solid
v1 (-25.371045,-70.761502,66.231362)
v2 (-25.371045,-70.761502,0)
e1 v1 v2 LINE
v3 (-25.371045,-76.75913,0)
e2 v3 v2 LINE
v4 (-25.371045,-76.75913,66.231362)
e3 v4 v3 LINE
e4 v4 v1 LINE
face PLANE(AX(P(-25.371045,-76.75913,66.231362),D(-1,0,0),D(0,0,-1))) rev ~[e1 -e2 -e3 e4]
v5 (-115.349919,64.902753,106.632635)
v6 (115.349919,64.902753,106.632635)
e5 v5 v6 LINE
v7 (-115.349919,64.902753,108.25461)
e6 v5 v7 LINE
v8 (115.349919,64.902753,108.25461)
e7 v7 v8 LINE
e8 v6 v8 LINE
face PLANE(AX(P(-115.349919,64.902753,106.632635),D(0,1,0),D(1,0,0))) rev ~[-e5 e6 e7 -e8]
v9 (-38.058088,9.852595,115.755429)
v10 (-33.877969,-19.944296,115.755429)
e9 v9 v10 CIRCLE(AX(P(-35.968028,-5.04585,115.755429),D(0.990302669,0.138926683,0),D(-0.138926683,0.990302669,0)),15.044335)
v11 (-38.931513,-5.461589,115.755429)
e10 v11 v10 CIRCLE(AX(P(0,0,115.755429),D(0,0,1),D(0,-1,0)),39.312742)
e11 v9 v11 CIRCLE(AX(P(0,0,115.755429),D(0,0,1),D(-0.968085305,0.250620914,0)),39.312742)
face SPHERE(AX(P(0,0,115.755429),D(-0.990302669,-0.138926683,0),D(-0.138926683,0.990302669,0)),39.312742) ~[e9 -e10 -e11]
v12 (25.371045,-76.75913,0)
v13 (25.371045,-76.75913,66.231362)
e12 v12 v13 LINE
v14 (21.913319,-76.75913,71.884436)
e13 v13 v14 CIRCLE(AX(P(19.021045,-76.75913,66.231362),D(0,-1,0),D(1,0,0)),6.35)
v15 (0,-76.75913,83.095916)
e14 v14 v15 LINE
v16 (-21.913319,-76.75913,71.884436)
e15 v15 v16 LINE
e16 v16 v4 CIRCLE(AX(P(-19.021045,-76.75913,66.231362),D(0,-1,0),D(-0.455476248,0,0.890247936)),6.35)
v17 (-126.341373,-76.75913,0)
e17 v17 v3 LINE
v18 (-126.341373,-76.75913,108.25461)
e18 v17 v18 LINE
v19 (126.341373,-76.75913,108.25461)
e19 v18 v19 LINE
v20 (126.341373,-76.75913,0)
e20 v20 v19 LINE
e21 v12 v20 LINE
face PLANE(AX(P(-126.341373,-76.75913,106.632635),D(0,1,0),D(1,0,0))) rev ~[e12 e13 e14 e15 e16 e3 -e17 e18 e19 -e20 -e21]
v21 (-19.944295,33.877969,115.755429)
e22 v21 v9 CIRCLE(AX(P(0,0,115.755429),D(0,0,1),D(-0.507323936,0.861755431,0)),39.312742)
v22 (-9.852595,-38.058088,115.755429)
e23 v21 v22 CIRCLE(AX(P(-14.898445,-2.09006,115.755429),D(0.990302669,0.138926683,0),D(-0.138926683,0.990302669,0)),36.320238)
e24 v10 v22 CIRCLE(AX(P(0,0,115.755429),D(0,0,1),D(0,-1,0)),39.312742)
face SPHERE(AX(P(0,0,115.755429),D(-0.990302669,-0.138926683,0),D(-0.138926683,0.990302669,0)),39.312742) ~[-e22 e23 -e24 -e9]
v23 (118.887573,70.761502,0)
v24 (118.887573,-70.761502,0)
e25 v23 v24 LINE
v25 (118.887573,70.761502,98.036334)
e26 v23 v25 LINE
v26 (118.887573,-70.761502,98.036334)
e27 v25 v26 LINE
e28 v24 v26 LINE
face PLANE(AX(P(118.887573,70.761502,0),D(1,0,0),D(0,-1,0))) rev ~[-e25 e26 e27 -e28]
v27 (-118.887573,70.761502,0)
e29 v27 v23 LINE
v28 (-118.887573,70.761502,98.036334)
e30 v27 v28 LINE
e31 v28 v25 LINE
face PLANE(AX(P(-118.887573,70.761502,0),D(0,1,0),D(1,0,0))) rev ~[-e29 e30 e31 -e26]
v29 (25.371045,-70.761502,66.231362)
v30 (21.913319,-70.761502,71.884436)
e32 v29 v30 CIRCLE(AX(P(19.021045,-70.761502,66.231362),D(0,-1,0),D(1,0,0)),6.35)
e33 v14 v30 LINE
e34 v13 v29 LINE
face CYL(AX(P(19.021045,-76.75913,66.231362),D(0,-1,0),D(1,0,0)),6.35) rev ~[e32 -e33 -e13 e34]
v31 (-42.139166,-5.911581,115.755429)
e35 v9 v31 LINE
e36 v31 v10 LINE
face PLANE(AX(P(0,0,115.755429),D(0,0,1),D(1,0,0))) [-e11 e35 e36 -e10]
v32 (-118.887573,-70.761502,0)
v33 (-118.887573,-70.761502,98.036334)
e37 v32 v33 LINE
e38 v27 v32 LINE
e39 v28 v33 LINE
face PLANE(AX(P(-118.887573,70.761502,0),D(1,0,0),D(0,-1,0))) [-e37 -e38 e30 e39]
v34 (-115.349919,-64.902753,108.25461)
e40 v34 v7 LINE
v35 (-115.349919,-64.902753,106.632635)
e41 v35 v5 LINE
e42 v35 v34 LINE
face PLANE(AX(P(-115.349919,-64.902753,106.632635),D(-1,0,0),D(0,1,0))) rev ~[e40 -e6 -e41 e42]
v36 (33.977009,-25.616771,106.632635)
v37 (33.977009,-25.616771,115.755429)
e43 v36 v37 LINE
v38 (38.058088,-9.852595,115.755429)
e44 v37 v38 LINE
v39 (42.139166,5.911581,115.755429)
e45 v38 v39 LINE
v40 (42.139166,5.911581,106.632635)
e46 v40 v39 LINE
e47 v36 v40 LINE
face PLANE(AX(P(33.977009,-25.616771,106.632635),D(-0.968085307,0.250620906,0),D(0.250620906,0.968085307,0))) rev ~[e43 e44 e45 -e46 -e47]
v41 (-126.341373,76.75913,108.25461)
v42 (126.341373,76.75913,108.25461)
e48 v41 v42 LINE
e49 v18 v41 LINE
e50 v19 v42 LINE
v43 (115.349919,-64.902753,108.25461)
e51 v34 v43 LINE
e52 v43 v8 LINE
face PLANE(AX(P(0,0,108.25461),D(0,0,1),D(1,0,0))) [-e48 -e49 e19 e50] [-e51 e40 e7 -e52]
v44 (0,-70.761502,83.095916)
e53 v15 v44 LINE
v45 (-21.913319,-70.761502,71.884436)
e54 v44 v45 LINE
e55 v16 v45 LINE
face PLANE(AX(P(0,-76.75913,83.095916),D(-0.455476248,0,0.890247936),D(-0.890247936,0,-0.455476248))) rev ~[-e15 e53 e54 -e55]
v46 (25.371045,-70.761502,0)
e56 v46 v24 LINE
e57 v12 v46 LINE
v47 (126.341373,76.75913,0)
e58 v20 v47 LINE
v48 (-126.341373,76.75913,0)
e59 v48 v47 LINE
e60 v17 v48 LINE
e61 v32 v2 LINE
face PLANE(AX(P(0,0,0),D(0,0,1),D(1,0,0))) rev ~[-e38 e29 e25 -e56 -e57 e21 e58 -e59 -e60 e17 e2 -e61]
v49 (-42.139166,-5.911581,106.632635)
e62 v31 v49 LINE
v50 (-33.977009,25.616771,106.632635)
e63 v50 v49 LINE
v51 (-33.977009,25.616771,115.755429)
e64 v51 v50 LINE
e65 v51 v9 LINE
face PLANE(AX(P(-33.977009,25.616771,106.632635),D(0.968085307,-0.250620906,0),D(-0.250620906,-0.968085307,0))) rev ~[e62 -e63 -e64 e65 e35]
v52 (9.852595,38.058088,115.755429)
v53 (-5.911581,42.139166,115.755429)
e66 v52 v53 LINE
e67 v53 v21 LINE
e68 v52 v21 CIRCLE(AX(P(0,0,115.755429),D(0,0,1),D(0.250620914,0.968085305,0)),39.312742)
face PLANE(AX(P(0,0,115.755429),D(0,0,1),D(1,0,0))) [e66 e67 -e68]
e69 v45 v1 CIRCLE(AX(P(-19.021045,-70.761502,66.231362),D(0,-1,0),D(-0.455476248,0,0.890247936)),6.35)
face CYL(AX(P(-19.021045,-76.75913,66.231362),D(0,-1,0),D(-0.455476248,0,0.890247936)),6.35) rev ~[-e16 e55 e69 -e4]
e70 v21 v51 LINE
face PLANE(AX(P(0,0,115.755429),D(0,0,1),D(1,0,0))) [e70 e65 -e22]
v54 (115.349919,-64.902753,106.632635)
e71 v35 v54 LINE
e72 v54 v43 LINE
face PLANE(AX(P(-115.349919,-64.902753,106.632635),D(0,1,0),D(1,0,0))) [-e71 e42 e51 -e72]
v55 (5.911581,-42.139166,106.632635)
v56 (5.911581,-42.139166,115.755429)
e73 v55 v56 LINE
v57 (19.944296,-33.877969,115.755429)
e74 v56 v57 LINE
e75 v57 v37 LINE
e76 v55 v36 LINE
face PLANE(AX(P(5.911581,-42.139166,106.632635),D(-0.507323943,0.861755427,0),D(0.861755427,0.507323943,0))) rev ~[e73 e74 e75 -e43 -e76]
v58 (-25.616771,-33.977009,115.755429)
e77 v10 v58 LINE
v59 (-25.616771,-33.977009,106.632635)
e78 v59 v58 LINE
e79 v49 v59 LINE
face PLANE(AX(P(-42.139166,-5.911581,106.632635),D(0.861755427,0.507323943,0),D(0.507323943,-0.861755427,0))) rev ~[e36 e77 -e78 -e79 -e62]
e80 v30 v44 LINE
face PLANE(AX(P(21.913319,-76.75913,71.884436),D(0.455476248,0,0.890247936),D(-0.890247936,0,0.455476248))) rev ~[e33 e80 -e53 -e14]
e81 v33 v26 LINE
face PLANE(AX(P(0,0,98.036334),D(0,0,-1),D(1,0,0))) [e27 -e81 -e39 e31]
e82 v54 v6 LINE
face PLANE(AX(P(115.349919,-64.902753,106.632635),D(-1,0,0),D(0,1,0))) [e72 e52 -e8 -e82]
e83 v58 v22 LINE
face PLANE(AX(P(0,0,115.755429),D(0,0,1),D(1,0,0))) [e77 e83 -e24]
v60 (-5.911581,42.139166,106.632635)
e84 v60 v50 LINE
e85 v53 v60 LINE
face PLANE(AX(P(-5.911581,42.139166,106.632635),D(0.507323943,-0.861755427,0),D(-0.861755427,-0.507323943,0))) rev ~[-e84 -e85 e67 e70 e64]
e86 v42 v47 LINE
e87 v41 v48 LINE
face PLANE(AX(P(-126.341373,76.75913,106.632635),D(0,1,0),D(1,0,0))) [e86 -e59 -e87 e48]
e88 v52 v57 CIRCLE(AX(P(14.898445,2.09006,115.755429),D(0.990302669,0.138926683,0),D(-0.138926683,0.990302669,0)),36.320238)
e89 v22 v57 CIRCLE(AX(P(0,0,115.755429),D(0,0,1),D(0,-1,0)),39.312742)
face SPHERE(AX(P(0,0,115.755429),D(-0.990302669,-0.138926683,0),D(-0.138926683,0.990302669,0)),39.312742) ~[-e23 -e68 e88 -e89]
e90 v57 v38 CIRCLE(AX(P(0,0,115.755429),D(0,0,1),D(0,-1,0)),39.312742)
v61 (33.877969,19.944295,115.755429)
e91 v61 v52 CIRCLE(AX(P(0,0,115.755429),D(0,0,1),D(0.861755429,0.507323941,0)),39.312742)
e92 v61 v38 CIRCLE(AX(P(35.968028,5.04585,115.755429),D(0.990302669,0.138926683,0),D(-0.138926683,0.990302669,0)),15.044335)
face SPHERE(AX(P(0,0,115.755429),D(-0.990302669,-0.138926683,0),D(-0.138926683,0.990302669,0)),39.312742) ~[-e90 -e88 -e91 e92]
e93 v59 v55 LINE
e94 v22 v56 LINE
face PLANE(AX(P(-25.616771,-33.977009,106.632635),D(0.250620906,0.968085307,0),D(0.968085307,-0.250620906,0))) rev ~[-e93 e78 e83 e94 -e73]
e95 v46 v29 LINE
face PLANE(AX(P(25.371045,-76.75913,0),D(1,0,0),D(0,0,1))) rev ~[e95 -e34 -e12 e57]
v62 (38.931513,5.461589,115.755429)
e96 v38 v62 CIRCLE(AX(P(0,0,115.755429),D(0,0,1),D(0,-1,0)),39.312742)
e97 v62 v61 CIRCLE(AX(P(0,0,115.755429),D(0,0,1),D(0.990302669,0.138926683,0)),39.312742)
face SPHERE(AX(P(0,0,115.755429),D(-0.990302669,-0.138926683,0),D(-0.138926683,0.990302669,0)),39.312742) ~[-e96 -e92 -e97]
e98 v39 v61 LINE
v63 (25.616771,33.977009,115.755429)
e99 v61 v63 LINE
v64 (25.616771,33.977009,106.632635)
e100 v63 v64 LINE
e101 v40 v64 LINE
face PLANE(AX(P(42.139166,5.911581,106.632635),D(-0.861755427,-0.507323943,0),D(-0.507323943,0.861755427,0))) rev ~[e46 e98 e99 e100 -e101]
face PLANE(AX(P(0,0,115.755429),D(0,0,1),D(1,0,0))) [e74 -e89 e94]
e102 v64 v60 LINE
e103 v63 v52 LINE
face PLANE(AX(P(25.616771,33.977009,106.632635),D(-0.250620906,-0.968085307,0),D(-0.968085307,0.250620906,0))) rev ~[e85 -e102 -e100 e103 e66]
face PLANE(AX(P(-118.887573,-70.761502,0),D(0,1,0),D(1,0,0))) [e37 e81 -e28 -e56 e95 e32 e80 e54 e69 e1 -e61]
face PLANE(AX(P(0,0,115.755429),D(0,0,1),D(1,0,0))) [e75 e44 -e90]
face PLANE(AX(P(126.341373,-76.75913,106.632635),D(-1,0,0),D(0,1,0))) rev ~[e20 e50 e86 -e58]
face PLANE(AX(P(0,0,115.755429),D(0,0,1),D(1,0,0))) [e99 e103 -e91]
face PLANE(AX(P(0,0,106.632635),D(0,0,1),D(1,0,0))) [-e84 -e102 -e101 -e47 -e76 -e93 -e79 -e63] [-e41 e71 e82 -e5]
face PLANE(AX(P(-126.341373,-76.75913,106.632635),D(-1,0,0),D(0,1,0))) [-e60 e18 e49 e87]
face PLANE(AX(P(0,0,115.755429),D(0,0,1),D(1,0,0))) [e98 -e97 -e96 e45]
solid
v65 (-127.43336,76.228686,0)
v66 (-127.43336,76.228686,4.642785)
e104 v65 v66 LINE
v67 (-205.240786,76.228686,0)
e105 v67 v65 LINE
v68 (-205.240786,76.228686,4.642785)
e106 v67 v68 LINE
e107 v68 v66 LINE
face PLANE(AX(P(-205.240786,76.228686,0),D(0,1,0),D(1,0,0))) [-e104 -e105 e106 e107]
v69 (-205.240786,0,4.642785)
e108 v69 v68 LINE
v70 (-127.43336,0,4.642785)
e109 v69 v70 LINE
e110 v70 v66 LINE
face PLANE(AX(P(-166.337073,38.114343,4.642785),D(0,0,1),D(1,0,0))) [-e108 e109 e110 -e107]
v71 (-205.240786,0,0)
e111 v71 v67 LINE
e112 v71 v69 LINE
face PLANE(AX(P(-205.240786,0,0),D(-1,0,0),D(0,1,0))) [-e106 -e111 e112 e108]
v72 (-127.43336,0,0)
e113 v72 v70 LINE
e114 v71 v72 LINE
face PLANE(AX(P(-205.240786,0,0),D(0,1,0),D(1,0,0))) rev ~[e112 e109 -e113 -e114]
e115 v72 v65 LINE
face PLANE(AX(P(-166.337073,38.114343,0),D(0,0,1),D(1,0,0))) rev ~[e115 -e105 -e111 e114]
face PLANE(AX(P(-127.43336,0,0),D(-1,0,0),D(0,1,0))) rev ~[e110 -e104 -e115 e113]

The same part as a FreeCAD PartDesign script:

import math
import FreeCAD as App
import Part
import Sketcher
Q = App.Units.Quantity


def add_polygon(sketch, points):
    """Adds a closed chain of lines whose ends are joined by coincident constraints."""
    first, n = sketch.GeometryCount, len(points)
    for a, b in zip(points, points[1:] + points[:1]):
        sketch.addGeometry(Part.LineSegment(App.Vector(*a, 0), App.Vector(*b, 0)), False)
    for i in range(n):
        sketch.addConstraint(Sketcher.Constraint("Coincident", first + i, 2, first + (i + 1) % n, 1))

doc = App.newDocument("Part")
body = doc.addObject("PartDesign::Body", "Body")

# Sketch on XY plane
sketch1 = body.newObject("Sketcher::SketchObject", "Sketch")
sketch1.AttachmentSupport = (doc.getObject("XY_Plane"), [""])
sketch1.MapMode = "FlatFace"
add_polygon(sketch1, [(-126.341373, 76.75913), (-126.341373, -76.75913), (126.341373, -76.75913), (126.341373, 76.75913)])  # lines 0-3
sketch1.addConstraint([
    Sketcher.Constraint("Vertical", 0),
    Sketcher.Constraint("Horizontal", 1),
    Sketcher.Constraint("Vertical", 2),
    Sketcher.Constraint("Horizontal", 3),
    Sketcher.Constraint("Symmetric", 0, 2, 2, 2, -1, 1),
    Sketcher.Constraint("DistanceY", 0, 2, 0, 1, 153.51826),
    Sketcher.Constraint("DistanceX", 1, 1, 1, 2, 252.682745),
])
pad1 = body.newObject("PartDesign::Pad", "Pad")
pad1.Profile = sketch1
pad1.Length = 106.632635

# Sketch on XY plane
sketch2 = body.newObject("Sketcher::SketchObject", "Sketch001")
sketch2.AttachmentSupport = (doc.getObject("XY_Plane"), [""])
sketch2.MapMode = "FlatFace"
sketch2.AttachmentOffset = App.Placement(App.Vector(0, 0, 106.632635), App.Rotation())
add_polygon(sketch2, [(-42.139166, -5.911581), (-25.616771, -33.977009), (5.911581, -42.139166), (33.977009, -25.616771), (42.139166, 5.911581), (25.616771, 33.977009), (-5.911581, 42.139166), (-33.977009, 25.616771)])  # lines 0-7
sketch2.addConstraint([
    Sketcher.Constraint("Symmetric", 0, 2, 4, 2, -1, 1),
    Sketcher.Constraint("Symmetric", 1, 2, 5, 2, -1, 1),
    Sketcher.Constraint("Symmetric", 2, 2, 6, 2, -1, 1),
    Sketcher.Constraint("Symmetric", 3, 2, 7, 2, -1, 1),
    Sketcher.Constraint("Perpendicular", 0, 2),
    Sketcher.Constraint("Perpendicular", 1, 3),
    Sketcher.Constraint("Equal", 0, 1),
    Sketcher.Constraint("Equal", 1, 2),
    Sketcher.Constraint("Equal", 2, 3),
    Sketcher.Constraint("DistanceY", 1, 2, 4, 2, Q("2.9966998 in")),
    Sketcher.Constraint("Distance", 0, 32.567742),
    Sketcher.Constraint("DistanceX", 0, 2, -1, 1, 25.616771),
])
pad2 = body.newObject("PartDesign::Pad", "Pad001")
pad2.Profile = sketch2
pad2.Length = 9.122794

# Sketch on XY plane
sketch3 = body.newObject("Sketcher::SketchObject", "Sketch002")
sketch3.AttachmentSupport = (doc.getObject("XY_Plane"), [""])
sketch3.MapMode = "FlatFace"
sketch3.AttachmentOffset = App.Placement(App.Vector(0, 0, 115.755429), App.Rotation())
sketch3.addGeometry([
    Part.LineSegment(App.Vector(-38.931513, -5.461589, 0), App.Vector(38.931513, 5.461589, 0)),  # 0
    Part.ArcOfCircle(Part.Circle(App.Vector(0, 0, 0), App.Vector(0, 0, 1), 39.312742), math.radians(7.985743), math.radians(30.485743)),  # 1
    Part.ArcOfCircle(Part.Circle(App.Vector(0, 0, 0), App.Vector(0, 0, 1), 39.312742), math.radians(30.485743), math.radians(75.485742)),  # 2
    Part.ArcOfCircle(Part.Circle(App.Vector(0, 0, 0), App.Vector(0, 0, 1), 39.312742), math.radians(75.485742), math.radians(120.485742)),  # 3
    Part.ArcOfCircle(Part.Circle(App.Vector(0, 0, 0), App.Vector(0, 0, 1), 39.312742), math.radians(120.485742), math.radians(165.485742)),  # 4
    Part.ArcOfCircle(Part.Circle(App.Vector(0, 0, 0), App.Vector(0, 0, 1), 39.312742), math.radians(165.485742), math.radians(187.985743)),  # 5
], False)
sketch3.addGeometry(Part.LineSegment(App.Vector(-38.931513, -5.461589, 0), App.Vector(38.931513, 5.461589, 0)), True)  # axis
sketch3.addConstraint([
    Sketcher.Constraint("Coincident", 0, 2, 1, 1),
    Sketcher.Constraint("Tangent", 1, 2, 2, 1),
    Sketcher.Constraint("Tangent", 2, 2, 3, 1),
    Sketcher.Constraint("Tangent", 3, 2, 4, 1),
    Sketcher.Constraint("Tangent", 4, 2, 5, 1),
    Sketcher.Constraint("Coincident", 5, 2, 0, 1),
    Sketcher.Constraint("Coincident", 1, 3, -1, 1),
    Sketcher.Constraint("Coincident", 3, 3, -1, 1),
    Sketcher.Constraint("Coincident", 5, 3, -1, 1),
    Sketcher.Constraint("Coincident", 6, 1, 5, 2),
    Sketcher.Constraint("Coincident", 6, 2, 0, 2),
    Sketcher.Constraint("Radius", 1, 39.312742),
    Sketcher.Constraint("DistanceY", -1, 1, 0, 2, 5.461589),
    Sketcher.Constraint("DistanceX", -1, 1, 1, 2, 33.877969),
    Sketcher.Constraint("DistanceY", -1, 1, 3, 2, 33.877969),
    Sketcher.Constraint("DistanceY", 5, 2, -1, 1, 5.461589),
    Sketcher.Constraint("DistanceX", 3, 2, 2, 2, 29.79689),
    Sketcher.Constraint("DistanceX", 4, 2, -1, 1, 38.058088),
])
revolution = body.newObject("PartDesign::Revolution", "Revolution")
revolution.Profile = sketch3
revolution.ReferenceAxis = (sketch3, ["Axis0"])
revolution.Angle = 360

# Sketch on XY plane
sketch4 = body.newObject("Sketcher::SketchObject", "Sketch003")
sketch4.AttachmentSupport = (doc.getObject("XY_Plane"), [""])
sketch4.MapMode = "FlatFace"
sketch4.AttachmentOffset = App.Placement(App.Vector(0, 0, 106.632635), App.Rotation())
add_polygon(sketch4, [(-126.341373, 76.75913), (-126.341373, -76.75913), (126.341373, -76.75913), (126.341373, 76.75913)])  # lines 0-3
add_polygon(sketch4, [(115.349919, -64.902753), (-115.349919, -64.902753), (-115.349919, 64.902753), (115.349919, 64.902753)])  # lines 4-7
add_polygon(sketch4, [(-33.977009, 25.616771), (-42.139166, -5.911581), (-25.616771, -33.977009), (5.911581, -42.139166), (33.977009, -25.616771), (42.139166, 5.911581), (25.616771, 33.977009), (-5.911581, 42.139166)])  # lines 8-15
sketch4.addConstraint([
    Sketcher.Constraint("Vertical", 0),
    Sketcher.Constraint("Horizontal", 1),
    Sketcher.Constraint("Vertical", 2),
    Sketcher.Constraint("Horizontal", 3),
    Sketcher.Constraint("Horizontal", 4),
    Sketcher.Constraint("Vertical", 5),
    Sketcher.Constraint("Horizontal", 6),
    Sketcher.Constraint("Vertical", 7),
    Sketcher.Constraint("Symmetric", 0, 2, 2, 2, -1, 1),
    Sketcher.Constraint("Symmetric", 4, 2, 6, 2, -1, 1),
    Sketcher.Constraint("Symmetric", 8, 2, 12, 2, -1, 1),
    Sketcher.Constraint("Symmetric", 9, 2, 13, 2, -1, 1),
    Sketcher.Constraint("Symmetric", 10, 2, 14, 2, -1, 1),
    Sketcher.Constraint("Symmetric", 11, 2, 15, 2, -1, 1),
    Sketcher.Constraint("Perpendicular", 8, 10),
    Sketcher.Constraint("Perpendicular", 9, 11),
    Sketcher.Constraint("Equal", 8, 9),
    Sketcher.Constraint("Equal", 9, 10),
    Sketcher.Constraint("Equal", 10, 11),
    Sketcher.Constraint("DistanceX", 8, 2, 11, 2, Q("2.9966998 in")),
    Sketcher.Constraint("DistanceY", 0, 2, 0, 1, 153.51826),
    Sketcher.Constraint("DistanceX", 0, 2, 9, 2, 100.724602),
    Sketcher.Constraint("DistanceX", 4, 2, 10, 2, 121.2615),
    Sketcher.Constraint("Distance", 8, 32.567742),
    Sketcher.Constraint("DistanceX", 1, 1, 1, 2, 252.682745),
    Sketcher.Constraint("DistanceY", 5, 1, 5, 2, 129.805505),
])
pad3 = body.newObject("PartDesign::Pad", "Pad002")
pad3.Profile = sketch4
pad3.Length = 1.621975

# Sketch on XZ plane
sketch5 = body.newObject("Sketcher::SketchObject", "Sketch004")
sketch5.AttachmentSupport = (doc.getObject("XZ_Plane"), [""])
sketch5.MapMode = "FlatFace"
sketch5.AttachmentOffset = App.Placement(App.Vector(0, 0, 76.75913), App.Rotation())
sketch5.addGeometry([
    Part.LineSegment(App.Vector(25.371045, 0, 0), App.Vector(25.371045, 66.231362, 0)),  # 0
    Part.ArcOfCircle(Part.Circle(App.Vector(19.021045, 66.231362, 0), App.Vector(0, 0, 1), 6.35), math.radians(0), math.radians(62.904419)),  # 1
    Part.LineSegment(App.Vector(21.913319, 71.884436, 0), App.Vector(0, 83.095916, 0)),  # 2
    Part.LineSegment(App.Vector(0, 83.095916, 0), App.Vector(-21.913319, 71.884436, 0)),  # 3
    Part.ArcOfCircle(Part.Circle(App.Vector(-19.021045, 66.231362, 0), App.Vector(0, 0, 1), 6.35), math.radians(117.095581), math.radians(180)),  # 4
    Part.LineSegment(App.Vector(-25.371045, 66.231362, 0), App.Vector(-25.371045, 0, 0)),  # 5
    Part.LineSegment(App.Vector(-25.371045, 0, 0), App.Vector(25.371045, 0, 0)),  # 6
], False)
sketch5.addConstraint([
    Sketcher.Constraint("Tangent", 0, 2, 1, 1),
    Sketcher.Constraint("Tangent", 1, 2, 2, 1),
    Sketcher.Constraint("Coincident", 2, 2, 3, 1),
    Sketcher.Constraint("Tangent", 3, 2, 4, 1),
    Sketcher.Constraint("Tangent", 4, 2, 5, 1),
    Sketcher.Constraint("Coincident", 5, 2, 6, 1),
    Sketcher.Constraint("Coincident", 6, 2, 0, 1),
    Sketcher.Constraint("Vertical", 0),
    Sketcher.Constraint("Vertical", 5),
    Sketcher.Constraint("Horizontal", 6),
    Sketcher.Constraint("Equal", 1, 4),
    Sketcher.Constraint("Symmetric", 5, 2, 6, 2, -1, 1),
    Sketcher.Constraint("Symmetric", 1, 2, 3, 2, -2),
    Sketcher.Constraint("Radius", 1, Q("0.25 in")),
    Sketcher.Constraint("DistanceX", 6, 1, 6, 2, 50.74209),
    Sketcher.Constraint("DistanceY", 0, 1, 0, 2, 66.231362),
    Sketcher.Constraint("Distance", 2, 24.61485),
])
pocket1 = body.newObject("PartDesign::Pocket", "Pocket")
pocket1.Profile = sketch5
pocket1.Length = 6.326372

# Sketch on XY plane
sketch6 = body.newObject("Sketcher::SketchObject", "Sketch005")
sketch6.AttachmentSupport = (doc.getObject("XY_Plane"), [""])
sketch6.MapMode = "FlatFace"
add_polygon(sketch6, [(-118.887573, -70.761502), (-118.887573, 70.761502), (118.887573, 70.761502), (118.887573, -70.761502)])  # lines 0-3
sketch6.addConstraint([
    Sketcher.Constraint("Vertical", 0),
    Sketcher.Constraint("Horizontal", 1),
    Sketcher.Constraint("Vertical", 2),
    Sketcher.Constraint("Horizontal", 3),
    Sketcher.Constraint("Symmetric", 0, 2, 2, 2, -1, 1),
    Sketcher.Constraint("DistanceY", -1, 1, 0, 2, 70.761502),
    Sketcher.Constraint("DistanceX", 1, 1, 1, 2, 237.775147),
])
pocket2 = body.newObject("PartDesign::Pocket", "Pocket001")
pocket2.Profile = sketch6
pocket2.Length = 98.036334
pocket2.Reversed = True
body2 = doc.addObject("PartDesign::Body", "Body001")

# Sketch on XY plane
sketch7 = body2.newObject("Sketcher::SketchObject", "Sketch006")
sketch7.AttachmentSupport = (doc.getObject("XY_Plane001"), [""])
sketch7.MapMode = "FlatFace"
add_polygon(sketch7, [(-205.240786, 76.228686), (-205.240786, 0), (-127.43336, 0), (-127.43336, 76.228686)])  # lines 0-3
sketch7.addConstraint([
    Sketcher.Constraint("Vertical", 0),
    Sketcher.Constraint("Horizontal", 1),
    Sketcher.Constraint("Vertical", 2),
    Sketcher.Constraint("Horizontal", 3),
    Sketcher.Constraint("PointOnObject", 0, 2, -1),
    Sketcher.Constraint("DistanceX", 1, 1, 1, 2, 77.807426),
    Sketcher.Constraint("DistanceY", 0, 2, 0, 1, 76.228686),
    Sketcher.Constraint("DistanceX", 1, 2, -1, 1, 127.43336),
])
pad4 = body2.newObject("PartDesign::Pad", "Pad003")
pad4.Profile = sketch7
pad4.Length = 4.642785

doc.recompute()
